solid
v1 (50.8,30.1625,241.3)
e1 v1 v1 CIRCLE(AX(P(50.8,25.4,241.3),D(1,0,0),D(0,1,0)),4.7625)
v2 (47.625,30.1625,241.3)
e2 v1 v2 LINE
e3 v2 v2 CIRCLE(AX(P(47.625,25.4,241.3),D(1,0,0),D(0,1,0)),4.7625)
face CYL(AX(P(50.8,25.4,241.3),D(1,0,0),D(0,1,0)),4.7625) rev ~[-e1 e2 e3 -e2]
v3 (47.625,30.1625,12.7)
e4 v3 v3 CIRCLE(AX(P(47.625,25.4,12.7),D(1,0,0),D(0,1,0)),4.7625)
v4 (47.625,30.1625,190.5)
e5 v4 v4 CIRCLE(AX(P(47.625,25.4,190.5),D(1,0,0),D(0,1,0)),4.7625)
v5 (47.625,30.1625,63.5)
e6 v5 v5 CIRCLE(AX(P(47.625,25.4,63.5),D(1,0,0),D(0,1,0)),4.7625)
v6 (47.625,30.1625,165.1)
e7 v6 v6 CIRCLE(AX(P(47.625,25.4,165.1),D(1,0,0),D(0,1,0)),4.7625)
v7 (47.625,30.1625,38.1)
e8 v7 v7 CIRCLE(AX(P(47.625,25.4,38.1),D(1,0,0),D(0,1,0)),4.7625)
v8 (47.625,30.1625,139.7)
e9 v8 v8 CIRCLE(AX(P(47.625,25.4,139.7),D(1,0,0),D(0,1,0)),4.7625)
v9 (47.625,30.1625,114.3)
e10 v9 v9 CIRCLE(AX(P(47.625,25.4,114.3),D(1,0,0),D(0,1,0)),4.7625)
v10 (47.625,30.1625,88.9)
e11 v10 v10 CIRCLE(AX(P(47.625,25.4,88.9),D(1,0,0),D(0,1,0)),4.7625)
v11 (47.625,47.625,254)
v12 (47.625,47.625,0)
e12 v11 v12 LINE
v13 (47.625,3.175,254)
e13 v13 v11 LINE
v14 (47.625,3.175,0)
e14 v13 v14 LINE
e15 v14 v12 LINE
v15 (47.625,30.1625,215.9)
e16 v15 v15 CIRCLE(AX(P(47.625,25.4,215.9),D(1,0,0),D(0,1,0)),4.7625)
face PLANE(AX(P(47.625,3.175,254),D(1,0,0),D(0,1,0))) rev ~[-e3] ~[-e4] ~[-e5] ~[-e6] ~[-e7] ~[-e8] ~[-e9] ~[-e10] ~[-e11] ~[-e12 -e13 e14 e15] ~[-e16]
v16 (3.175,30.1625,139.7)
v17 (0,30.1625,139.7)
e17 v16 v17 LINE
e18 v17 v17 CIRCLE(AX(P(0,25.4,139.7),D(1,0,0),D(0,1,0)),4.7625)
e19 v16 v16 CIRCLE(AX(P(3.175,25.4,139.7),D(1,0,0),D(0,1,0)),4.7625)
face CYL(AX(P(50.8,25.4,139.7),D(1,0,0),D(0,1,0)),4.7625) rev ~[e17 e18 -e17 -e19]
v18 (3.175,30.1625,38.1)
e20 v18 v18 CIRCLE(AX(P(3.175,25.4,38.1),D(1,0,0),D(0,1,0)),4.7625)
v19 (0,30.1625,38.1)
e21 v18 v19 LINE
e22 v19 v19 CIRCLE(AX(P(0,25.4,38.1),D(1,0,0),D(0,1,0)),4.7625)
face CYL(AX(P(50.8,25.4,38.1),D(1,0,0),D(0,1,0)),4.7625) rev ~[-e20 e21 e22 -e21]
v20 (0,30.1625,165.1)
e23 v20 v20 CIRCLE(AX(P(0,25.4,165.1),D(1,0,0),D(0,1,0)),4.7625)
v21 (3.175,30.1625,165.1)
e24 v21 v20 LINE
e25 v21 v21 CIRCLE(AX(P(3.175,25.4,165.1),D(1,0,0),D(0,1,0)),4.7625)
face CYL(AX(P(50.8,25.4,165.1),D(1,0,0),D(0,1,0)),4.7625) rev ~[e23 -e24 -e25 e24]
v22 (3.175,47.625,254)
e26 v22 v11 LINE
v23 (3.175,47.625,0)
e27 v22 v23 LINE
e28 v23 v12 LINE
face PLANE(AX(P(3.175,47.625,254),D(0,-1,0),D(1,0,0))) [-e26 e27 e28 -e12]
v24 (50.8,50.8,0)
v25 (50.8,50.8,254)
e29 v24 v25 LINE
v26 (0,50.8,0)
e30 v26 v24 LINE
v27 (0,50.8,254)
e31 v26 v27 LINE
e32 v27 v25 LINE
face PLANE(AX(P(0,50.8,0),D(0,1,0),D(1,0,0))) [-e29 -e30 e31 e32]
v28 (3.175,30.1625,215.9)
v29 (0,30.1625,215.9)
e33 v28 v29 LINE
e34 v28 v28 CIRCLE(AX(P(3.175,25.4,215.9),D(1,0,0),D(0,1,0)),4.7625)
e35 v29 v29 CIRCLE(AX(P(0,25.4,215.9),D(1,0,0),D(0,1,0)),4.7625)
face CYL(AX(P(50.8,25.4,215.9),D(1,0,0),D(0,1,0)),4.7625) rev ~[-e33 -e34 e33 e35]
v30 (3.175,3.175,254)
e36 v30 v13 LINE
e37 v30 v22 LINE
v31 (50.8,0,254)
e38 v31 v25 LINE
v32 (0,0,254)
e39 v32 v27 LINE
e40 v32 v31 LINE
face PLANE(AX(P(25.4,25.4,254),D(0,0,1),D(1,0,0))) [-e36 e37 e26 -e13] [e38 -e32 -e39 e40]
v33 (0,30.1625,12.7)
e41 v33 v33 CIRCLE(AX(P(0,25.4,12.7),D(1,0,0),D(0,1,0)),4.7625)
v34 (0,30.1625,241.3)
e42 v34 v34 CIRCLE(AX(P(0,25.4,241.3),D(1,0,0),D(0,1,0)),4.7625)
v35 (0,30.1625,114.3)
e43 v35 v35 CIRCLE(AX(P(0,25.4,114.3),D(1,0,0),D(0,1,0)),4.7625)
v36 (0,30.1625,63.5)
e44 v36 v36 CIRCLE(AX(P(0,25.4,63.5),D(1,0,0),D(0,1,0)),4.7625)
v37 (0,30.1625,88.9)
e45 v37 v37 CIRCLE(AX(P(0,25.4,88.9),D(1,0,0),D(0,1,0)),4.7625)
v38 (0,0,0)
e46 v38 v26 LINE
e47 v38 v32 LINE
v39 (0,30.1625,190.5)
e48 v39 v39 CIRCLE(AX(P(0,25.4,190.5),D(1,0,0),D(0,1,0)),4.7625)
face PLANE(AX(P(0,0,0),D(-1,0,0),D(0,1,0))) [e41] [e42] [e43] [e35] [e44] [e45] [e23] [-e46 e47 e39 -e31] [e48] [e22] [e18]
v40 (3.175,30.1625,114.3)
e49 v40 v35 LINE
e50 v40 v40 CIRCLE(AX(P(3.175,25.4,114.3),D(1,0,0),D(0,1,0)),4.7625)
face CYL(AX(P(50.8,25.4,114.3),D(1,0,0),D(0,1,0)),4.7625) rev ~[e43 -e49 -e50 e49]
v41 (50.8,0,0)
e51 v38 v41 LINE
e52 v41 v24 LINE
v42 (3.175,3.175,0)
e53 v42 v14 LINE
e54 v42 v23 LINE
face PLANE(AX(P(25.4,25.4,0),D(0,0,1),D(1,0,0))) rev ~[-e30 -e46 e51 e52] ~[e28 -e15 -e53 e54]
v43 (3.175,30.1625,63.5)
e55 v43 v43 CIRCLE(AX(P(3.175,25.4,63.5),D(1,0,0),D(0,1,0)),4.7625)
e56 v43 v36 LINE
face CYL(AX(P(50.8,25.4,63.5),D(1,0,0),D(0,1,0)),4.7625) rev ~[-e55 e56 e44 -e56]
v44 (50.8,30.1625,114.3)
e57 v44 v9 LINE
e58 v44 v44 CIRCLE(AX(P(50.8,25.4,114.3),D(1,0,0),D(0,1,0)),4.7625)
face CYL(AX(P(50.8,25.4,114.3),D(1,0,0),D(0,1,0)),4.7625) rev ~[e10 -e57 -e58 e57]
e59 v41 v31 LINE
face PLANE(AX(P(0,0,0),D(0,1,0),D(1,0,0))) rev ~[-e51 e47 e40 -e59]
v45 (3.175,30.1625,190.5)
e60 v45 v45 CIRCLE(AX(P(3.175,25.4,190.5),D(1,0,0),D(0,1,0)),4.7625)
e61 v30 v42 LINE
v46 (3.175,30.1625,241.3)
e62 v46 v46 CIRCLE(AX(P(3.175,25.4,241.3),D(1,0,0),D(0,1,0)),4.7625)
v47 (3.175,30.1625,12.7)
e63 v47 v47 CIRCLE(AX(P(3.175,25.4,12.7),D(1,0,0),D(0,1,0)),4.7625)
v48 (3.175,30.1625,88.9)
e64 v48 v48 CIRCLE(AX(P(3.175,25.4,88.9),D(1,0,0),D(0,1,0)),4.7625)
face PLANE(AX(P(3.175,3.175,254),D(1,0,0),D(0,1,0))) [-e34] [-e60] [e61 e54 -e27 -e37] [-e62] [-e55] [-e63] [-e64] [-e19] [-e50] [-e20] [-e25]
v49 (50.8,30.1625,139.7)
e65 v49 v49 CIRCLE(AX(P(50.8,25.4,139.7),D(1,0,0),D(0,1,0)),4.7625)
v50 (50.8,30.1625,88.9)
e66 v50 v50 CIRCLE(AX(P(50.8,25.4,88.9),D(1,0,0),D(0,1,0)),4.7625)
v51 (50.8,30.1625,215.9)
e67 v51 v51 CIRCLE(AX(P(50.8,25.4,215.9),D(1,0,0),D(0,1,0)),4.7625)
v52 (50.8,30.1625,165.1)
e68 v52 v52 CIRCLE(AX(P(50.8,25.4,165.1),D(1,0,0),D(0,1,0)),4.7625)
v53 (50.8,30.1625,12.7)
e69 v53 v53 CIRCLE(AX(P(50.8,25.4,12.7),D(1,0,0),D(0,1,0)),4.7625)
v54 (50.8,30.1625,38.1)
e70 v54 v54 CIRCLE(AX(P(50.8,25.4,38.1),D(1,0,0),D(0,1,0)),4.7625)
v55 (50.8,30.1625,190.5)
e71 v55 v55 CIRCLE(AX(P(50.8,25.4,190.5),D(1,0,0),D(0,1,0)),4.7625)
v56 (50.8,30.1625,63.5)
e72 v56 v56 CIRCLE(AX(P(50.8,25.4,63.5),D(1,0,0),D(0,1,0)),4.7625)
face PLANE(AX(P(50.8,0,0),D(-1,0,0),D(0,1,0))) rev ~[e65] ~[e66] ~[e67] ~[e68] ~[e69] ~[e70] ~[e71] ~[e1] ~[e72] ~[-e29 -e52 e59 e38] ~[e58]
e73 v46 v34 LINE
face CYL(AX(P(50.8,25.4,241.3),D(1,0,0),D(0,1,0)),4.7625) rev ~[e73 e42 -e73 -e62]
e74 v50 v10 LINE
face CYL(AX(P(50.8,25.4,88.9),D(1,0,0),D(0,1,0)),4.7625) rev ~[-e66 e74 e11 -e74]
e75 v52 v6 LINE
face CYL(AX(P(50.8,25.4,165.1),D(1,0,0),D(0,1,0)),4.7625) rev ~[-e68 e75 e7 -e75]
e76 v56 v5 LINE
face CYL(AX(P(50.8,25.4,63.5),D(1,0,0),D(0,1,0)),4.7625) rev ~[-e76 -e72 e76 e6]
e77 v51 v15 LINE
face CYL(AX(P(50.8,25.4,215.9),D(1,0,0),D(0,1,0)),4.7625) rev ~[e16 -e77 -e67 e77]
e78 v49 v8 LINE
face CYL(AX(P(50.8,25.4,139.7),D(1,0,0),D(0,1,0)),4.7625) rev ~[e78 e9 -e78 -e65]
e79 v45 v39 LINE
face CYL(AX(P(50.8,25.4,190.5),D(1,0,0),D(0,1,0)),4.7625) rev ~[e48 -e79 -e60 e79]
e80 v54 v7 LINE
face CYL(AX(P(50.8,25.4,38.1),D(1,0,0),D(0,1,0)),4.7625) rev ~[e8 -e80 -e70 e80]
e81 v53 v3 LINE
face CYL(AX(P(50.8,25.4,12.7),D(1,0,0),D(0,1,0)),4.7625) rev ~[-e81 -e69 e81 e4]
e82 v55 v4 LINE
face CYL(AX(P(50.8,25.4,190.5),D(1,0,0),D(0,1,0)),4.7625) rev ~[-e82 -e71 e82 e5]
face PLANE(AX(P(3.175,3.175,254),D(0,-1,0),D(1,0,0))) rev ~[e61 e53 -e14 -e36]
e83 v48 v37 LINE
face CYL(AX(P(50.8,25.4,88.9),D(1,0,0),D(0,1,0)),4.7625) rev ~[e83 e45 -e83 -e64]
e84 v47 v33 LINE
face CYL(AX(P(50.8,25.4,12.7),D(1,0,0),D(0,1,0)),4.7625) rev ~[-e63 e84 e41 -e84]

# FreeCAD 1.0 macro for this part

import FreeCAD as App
import Part
import Sketcher
from FreeCAD import Vector
Q = App.Units.Quantity


def add_polygon(sketch, points):
    """Adds a closed chain of lines whose ends are joined by coincident constraints."""
    first, n = sketch.GeometryCount, len(points)
    for a, b in zip(points, points[1:] + points[:1]):
        sketch.addGeometry(Part.LineSegment(App.Vector(*a, 0), App.Vector(*b, 0)), False)
    for i in range(n):
        sketch.addConstraint(Sketcher.Constraint("Coincident", first + i, 2, first + (i + 1) % n, 1))

doc = App.newDocument("Part")
body = doc.addObject("PartDesign::Body", "Body")

sketch1 = body.newObject("Sketcher::SketchObject", "Sketch")
sketch1.AttachmentSupport = (doc.getObject("XY_Plane"), [""])
sketch1.MapMode = "FlatFace"
add_polygon(sketch1, [(0, 51), (0, 0), (51, 0), (51, 51)])
sketch1.addConstraint(Sketcher.Constraint("Vertical", 0))
sketch1.addConstraint(Sketcher.Constraint("Horizontal", 1))
sketch1.addConstraint(Sketcher.Constraint("Vertical", 2))
sketch1.addConstraint(Sketcher.Constraint("Horizontal", 3))
sketch1.addConstraint(Sketcher.Constraint("Coincident", 0, 2, -1, 1))
sketch1.addConstraint(Sketcher.Constraint("Equal", 3, 0))
sketch1.addConstraint(Sketcher.Constraint("DistanceX", 1, 1, 1, 2, Q("2 in")))
pad1 = body.newObject("PartDesign::Pad", "Pad")
pad1.Profile = sketch1
pad1.Length = Q("10 in")

sketch2 = body.newObject("Sketcher::SketchObject", "Sketch001")
sketch2.AttachmentSupport = (doc.getObject("XY_Plane"), [""])
sketch2.MapMode = "FlatFace"
sketch2.AttachmentOffset = App.Placement(Vector(0, 0, 10 * 25.4), App.Rotation())
add_polygon(sketch2, [(3, 48), (3, 3), (48, 3), (48, 48)])
sketch2.addConstraint(Sketcher.Constraint("Vertical", 0))
sketch2.addConstraint(Sketcher.Constraint("Horizontal", 1))
sketch2.addConstraint(Sketcher.Constraint("Vertical", 2))
sketch2.addConstraint(Sketcher.Constraint("Horizontal", 3))
sketch2.addConstraint(Sketcher.Constraint("Equal", 3, 0))
sketch2.addConstraint(Sketcher.Constraint("DistanceX", 1, 1, 1, 2, Q("1.75 in")))
sketch2.addConstraint(Sketcher.Constraint("DistanceX", -1, 1, 0, 2, Q("0.125 in")))
sketch2.addConstraint(Sketcher.Constraint("DistanceY", -1, 1, 0, 2, Q("0.125 in")))
pocket1 = body.newObject("PartDesign::Pocket", "Pocket")
pocket1.Profile = sketch2
pocket1.Type = "ThroughAll"

sketch3 = body.newObject("Sketcher::SketchObject", "Sketch002")
sketch3.AttachmentSupport = (doc.getObject("YZ_Plane"), [""])
sketch3.MapMode = "FlatFace"
sketch3.AttachmentOffset = App.Placement(Vector(0, 0, 2 * 25.4), App.Rotation())
sketch3.addGeometry(Part.Circle(Vector(25.4, 12.7, 0), Vector(0, 0, 1), 4.8), False)
sketch3.addGeometry(Part.Circle(Vector(25.4, 38.1, 0), Vector(0, 0, 1), 4.8), False)
sketch3.addGeometry(Part.Circle(Vector(25.4, 63.5, 0), Vector(0, 0, 1), 4.8), False)
sketch3.addGeometry(Part.Circle(Vector(25.4, 88.9, 0), Vector(0, 0, 1), 4.8), False)
sketch3.addGeometry(Part.Circle(Vector(25.4, 114.3, 0), Vector(0, 0, 1), 4.8), False)
sketch3.addGeometry(Part.Circle(Vector(25.4, 139.7, 0), Vector(0, 0, 1), 4.8), False)
sketch3.addGeometry(Part.Circle(Vector(25.4, 165.1, 0), Vector(0, 0, 1), 4.8), False)
sketch3.addGeometry(Part.Circle(Vector(25.4, 190.5, 0), Vector(0, 0, 1), 4.8), False)
sketch3.addGeometry(Part.Circle(Vector(25.4, 215.9, 0), Vector(0, 0, 1), 4.8), False)
sketch3.addGeometry(Part.Circle(Vector(25.4, 241.3, 0), Vector(0, 0, 1), 4.8), False)
sketch3.addConstraint(Sketcher.Constraint("Equal", 0, 1))
sketch3.addConstraint(Sketcher.Constraint("Equal", 1, 2))
sketch3.addConstraint(Sketcher.Constraint("Equal", 2, 3))
sketch3.addConstraint(Sketcher.Constraint("Equal", 3, 4))
sketch3.addConstraint(Sketcher.Constraint("Equal", 4, 5))
sketch3.addConstraint(Sketcher.Constraint("Equal", 5, 6))
sketch3.addConstraint(Sketcher.Constraint("Equal", 6, 7))
sketch3.addConstraint(Sketcher.Constraint("Equal", 7, 8))
sketch3.addConstraint(Sketcher.Constraint("Equal", 8, 9))
sketch3.addConstraint(Sketcher.Constraint("Vertical", 0, 3, 1, 3))
sketch3.addConstraint(Sketcher.Constraint("Vertical", 1, 3, 2, 3))
sketch3.addConstraint(Sketcher.Constraint("Vertical", 2, 3, 3, 3))
sketch3.addConstraint(Sketcher.Constraint("Vertical", 3, 3, 4, 3))
sketch3.addConstraint(Sketcher.Constraint("Vertical", 4, 3, 5, 3))
sketch3.addConstraint(Sketcher.Constraint("Vertical", 5, 3, 6, 3))
sketch3.addConstraint(Sketcher.Constraint("Vertical", 6, 3, 7, 3))
sketch3.addConstraint(Sketcher.Constraint("Vertical", 7, 3, 8, 3))
sketch3.addConstraint(Sketcher.Constraint("Vertical", 8, 3, 9, 3))
sketch3.addConstraint(Sketcher.Constraint("Diameter", 0, Q("0.375 in")))
sketch3.addConstraint(Sketcher.Constraint("DistanceX", -1, 1, 0, 3, Q("1 in")))
sketch3.addConstraint(Sketcher.Constraint("DistanceY", 0, 3, 1, 3, Q("1 in")))
sketch3.addConstraint(Sketcher.Constraint("DistanceY", 1, 3, 2, 3, Q("1 in")))
sketch3.addConstraint(Sketcher.Constraint("DistanceY", 2, 3, 3, 3, Q("1 in")))
sketch3.addConstraint(Sketcher.Constraint("DistanceY", 3, 3, 4, 3, Q("1 in")))
sketch3.addConstraint(Sketcher.Constraint("DistanceY", 4, 3, 5, 3, Q("1 in")))
sketch3.addConstraint(Sketcher.Constraint("DistanceY", 5, 3, 6, 3, Q("1 in")))
sketch3.addConstraint(Sketcher.Constraint("DistanceY", 6, 3, 7, 3, Q("1 in")))
sketch3.addConstraint(Sketcher.Constraint("DistanceY", 7, 3, 8, 3, Q("1 in")))
sketch3.addConstraint(Sketcher.Constraint("DistanceY", 8, 3, 9, 3, Q("1 in")))
sketch3.addConstraint(Sketcher.Constraint("DistanceY", -1, 1, 0, 3, Q("0.5 in")))
pocket2 = body.newObject("PartDesign::Pocket", "Pocket001")
pocket2.Profile = sketch3
pocket2.Type = "ThroughAll"

doc.recompute()
